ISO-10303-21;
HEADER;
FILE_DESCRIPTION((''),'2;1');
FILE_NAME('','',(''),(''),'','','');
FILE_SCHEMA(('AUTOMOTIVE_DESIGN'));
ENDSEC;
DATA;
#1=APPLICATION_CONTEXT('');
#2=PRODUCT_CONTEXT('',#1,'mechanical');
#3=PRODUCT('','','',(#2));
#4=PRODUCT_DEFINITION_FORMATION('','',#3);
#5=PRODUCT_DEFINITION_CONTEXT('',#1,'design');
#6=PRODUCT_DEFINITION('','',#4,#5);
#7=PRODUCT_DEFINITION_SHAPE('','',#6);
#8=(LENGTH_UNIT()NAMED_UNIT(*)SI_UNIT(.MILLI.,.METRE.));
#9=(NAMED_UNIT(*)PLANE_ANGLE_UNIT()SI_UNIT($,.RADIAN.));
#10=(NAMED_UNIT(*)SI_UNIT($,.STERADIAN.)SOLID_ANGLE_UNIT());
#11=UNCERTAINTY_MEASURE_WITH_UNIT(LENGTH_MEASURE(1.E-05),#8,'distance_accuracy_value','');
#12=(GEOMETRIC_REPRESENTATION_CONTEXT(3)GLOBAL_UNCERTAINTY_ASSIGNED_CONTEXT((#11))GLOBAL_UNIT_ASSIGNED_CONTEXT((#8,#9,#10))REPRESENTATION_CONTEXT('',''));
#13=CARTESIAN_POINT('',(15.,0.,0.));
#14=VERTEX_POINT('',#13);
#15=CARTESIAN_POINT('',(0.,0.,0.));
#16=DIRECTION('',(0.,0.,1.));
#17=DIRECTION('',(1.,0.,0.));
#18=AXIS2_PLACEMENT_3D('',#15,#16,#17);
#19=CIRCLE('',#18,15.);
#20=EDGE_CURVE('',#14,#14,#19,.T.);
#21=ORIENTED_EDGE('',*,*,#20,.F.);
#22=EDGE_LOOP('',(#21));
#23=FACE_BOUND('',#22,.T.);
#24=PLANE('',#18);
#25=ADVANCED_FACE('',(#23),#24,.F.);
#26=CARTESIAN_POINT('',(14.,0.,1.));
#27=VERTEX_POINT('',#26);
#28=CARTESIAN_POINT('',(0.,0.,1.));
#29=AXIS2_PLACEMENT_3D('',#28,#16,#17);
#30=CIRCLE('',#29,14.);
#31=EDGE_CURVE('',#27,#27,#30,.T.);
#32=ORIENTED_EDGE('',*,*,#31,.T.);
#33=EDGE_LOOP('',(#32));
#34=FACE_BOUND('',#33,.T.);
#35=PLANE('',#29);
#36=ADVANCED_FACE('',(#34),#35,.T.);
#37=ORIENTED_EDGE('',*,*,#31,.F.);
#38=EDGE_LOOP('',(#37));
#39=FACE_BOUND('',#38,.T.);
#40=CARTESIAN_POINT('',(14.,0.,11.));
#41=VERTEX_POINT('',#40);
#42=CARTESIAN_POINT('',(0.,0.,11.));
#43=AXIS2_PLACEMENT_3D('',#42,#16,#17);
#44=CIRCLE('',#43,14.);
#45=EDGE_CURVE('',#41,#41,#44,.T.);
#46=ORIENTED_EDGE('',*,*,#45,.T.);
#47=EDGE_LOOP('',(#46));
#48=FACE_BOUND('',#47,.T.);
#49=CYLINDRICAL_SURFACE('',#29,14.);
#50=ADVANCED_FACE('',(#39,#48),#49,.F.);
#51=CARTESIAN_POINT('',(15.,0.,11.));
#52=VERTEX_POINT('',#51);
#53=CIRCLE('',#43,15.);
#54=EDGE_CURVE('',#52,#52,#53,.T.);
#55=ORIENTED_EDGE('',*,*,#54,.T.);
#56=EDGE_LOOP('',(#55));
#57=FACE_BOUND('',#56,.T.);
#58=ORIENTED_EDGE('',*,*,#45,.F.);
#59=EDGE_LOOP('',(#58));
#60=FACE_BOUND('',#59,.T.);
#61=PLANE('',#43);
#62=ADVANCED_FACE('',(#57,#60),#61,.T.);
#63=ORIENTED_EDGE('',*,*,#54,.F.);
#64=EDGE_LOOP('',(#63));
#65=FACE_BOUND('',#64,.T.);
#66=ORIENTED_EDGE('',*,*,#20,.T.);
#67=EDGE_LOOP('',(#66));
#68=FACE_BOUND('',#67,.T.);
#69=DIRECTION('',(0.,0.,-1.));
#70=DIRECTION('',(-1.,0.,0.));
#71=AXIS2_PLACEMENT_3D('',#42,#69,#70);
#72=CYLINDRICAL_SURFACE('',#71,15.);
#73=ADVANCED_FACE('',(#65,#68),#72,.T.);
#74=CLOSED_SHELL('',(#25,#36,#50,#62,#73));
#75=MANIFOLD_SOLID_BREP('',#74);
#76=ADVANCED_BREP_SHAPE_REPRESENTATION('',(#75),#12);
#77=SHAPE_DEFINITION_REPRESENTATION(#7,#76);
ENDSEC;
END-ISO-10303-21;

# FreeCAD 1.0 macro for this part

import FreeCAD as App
import Part
import Sketcher
from FreeCAD import Vector

doc = App.newDocument("Part")
params = doc.addObject("Spreadsheet::Sheet", "Params")
for row, (alias, value) in enumerate([
    ("sketch1_diameter", "30 mm"),
    ("pad1_length", "11 mm"),
    ("sketch2_diameter", "28 mm"),
    ("pocket1_length", "10 mm"),
], start=1):
    params.set(f"A{row}", alias)
    params.set(f"B{row}", "=" + value)
    params.setAlias(f"B{row}", alias)

body = doc.addObject("PartDesign::Body", "Body")

# Sketch on XY plane
sketch1 = body.newObject("Sketcher::SketchObject", "Sketch")
sketch1.AttachmentSupport = (doc.getObject("XY_Plane"), [""])
sketch1.MapMode = "FlatFace"
sketch1.addGeometry(Part.Circle(Vector(0, 0, 0), Vector(0, 0, 1), 15), False)
sketch1.addConstraint([
    Sketcher.Constraint("Coincident", 0, 3, -1, 1),
    Sketcher.Constraint("Diameter", 0, 30.0),
])
sketch1.setExpression("Constraints[1]", "Params.sketch1_diameter")
pad1 = body.newObject("PartDesign::Pad", "Pad")
pad1.Profile = sketch1
pad1.setExpression("Length", "Params.pad1_length")

# Sketch on XY plane
sketch2 = body.newObject("Sketcher::SketchObject", "Sketch001")
sketch2.AttachmentSupport = (doc.getObject("XY_Plane"), [""])
sketch2.MapMode = "FlatFace"
sketch2.AttachmentOffset = App.Placement(Vector(0, 0, 11), App.Rotation())
sketch2.addGeometry(Part.Circle(Vector(0, 0, 0), Vector(0, 0, 1), 14), False)
sketch2.addConstraint([
    Sketcher.Constraint("Coincident", 0, 3, -1, 1),
    Sketcher.Constraint("Diameter", 0, 28.0),
])
sketch2.setExpression("Constraints[1]", "Params.sketch2_diameter")
pocket1 = body.newObject("PartDesign::Pocket", "Pocket")
pocket1.Profile = sketch2
pocket1.setExpression("Length", "Params.pocket1_length")

doc.recompute()
